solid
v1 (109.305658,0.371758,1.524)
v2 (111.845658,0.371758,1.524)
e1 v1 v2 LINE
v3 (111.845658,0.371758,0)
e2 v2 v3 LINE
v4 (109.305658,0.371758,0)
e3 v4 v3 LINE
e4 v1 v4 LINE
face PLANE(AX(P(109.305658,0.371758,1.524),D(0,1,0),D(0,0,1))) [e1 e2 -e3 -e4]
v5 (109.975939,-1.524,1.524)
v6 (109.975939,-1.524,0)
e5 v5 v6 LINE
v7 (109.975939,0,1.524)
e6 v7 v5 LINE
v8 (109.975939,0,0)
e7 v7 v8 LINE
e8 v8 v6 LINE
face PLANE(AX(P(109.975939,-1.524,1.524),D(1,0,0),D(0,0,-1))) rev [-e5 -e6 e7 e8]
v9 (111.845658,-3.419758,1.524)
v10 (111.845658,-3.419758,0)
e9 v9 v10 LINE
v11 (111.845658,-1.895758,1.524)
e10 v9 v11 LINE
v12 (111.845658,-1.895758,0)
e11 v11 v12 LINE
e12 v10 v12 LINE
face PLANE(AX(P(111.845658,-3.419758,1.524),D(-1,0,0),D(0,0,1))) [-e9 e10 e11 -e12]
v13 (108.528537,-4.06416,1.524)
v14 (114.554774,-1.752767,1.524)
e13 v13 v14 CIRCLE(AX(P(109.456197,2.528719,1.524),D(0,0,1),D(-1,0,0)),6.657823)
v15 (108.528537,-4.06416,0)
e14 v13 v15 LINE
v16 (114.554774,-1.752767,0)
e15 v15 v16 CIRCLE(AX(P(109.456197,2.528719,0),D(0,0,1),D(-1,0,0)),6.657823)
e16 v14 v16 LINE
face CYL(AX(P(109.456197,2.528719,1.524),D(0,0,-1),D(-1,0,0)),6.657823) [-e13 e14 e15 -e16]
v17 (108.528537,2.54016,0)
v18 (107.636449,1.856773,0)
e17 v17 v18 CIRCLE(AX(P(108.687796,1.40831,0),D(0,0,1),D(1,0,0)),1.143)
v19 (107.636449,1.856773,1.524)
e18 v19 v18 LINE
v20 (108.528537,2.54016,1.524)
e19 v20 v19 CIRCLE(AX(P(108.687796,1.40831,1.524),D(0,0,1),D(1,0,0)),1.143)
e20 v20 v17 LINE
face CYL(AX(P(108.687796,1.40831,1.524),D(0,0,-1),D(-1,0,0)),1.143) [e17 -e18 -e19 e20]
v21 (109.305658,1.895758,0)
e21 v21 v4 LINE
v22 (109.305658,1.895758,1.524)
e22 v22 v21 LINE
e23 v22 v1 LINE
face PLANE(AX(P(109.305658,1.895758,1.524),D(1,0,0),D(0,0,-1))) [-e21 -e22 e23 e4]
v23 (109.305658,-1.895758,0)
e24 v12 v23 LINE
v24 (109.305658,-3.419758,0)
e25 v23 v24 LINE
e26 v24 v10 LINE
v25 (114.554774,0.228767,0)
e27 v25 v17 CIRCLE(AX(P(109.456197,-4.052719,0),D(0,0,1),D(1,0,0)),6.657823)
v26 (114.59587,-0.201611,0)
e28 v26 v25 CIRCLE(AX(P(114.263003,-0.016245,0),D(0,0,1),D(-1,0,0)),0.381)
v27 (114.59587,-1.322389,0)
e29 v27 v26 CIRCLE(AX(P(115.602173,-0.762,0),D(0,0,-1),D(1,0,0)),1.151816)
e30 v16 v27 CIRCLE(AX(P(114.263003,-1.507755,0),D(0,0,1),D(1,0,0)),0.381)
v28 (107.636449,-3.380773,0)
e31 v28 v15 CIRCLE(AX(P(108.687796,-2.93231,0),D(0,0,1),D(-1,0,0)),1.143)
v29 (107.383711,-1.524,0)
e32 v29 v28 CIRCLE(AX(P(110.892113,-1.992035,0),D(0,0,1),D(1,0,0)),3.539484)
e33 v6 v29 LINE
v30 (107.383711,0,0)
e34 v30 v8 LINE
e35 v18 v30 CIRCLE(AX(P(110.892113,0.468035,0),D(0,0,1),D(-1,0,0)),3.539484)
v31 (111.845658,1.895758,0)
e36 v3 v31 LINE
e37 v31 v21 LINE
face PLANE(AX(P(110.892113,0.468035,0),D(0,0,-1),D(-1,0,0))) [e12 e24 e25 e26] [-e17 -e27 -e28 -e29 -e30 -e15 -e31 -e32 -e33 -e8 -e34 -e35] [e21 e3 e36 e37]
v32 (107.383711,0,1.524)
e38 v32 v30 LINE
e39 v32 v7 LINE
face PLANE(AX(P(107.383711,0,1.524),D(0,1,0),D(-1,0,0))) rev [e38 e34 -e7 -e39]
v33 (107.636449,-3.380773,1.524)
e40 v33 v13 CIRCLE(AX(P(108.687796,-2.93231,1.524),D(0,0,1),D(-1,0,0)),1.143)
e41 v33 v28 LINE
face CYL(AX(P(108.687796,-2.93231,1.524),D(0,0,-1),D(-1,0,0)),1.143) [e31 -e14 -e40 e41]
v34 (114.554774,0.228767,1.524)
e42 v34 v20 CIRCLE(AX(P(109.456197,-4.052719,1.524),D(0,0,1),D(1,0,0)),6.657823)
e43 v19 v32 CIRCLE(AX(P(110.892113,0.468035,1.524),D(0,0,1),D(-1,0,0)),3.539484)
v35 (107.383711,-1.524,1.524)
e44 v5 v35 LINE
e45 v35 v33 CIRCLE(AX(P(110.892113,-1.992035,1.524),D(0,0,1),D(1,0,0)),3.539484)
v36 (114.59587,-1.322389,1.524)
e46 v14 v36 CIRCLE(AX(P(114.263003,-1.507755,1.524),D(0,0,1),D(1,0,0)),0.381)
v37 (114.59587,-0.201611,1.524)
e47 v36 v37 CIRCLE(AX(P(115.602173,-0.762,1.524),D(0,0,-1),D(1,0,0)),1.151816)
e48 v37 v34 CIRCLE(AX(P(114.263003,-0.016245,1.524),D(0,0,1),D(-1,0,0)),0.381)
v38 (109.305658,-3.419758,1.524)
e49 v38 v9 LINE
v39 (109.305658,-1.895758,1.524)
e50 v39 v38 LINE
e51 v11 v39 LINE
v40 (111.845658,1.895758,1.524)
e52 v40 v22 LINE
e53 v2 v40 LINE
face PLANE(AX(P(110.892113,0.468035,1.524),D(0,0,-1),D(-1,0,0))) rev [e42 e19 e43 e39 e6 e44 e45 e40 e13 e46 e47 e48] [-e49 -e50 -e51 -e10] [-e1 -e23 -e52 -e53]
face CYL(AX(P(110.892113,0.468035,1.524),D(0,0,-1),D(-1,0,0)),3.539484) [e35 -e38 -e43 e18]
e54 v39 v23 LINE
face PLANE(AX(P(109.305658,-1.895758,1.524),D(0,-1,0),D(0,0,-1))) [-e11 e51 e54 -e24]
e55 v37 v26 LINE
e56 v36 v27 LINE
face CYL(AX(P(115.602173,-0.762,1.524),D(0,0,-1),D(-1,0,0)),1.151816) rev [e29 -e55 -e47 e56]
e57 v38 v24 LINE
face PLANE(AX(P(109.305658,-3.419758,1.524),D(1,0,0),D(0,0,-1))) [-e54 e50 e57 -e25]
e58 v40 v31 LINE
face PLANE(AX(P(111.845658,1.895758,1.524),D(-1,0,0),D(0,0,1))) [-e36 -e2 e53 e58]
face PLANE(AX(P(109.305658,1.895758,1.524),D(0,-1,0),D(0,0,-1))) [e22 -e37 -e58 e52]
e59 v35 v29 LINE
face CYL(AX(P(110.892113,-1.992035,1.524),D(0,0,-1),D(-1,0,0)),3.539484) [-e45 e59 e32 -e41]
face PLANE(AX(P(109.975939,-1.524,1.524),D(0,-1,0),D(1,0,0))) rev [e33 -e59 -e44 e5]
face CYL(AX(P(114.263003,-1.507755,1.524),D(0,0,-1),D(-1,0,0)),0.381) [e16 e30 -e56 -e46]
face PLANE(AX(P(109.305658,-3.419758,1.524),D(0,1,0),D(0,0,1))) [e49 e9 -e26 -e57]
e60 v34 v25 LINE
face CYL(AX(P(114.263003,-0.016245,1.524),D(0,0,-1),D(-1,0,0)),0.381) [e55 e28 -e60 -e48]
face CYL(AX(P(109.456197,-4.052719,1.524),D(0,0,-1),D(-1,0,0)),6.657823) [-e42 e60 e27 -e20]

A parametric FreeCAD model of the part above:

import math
import FreeCAD as App
import Part
import Sketcher

V = App.Vector
Q = App.Units.Quantity

doc = App.newDocument("Part")
body = doc.addObject("PartDesign::Body", "Body")

sketch1 = body.newObject("Sketcher::SketchObject", "Sketch")
sketch1.AttachmentSupport = (doc.getObject("XY_Plane"), [""])
sketch1.MapMode = "FlatFace"
sketch1.addGeometry(Part.LineSegment(V(109.98, -1.52, 0), V(107.38, -1.52, 0)), False)
sketch1.addGeometry(Part.ArcOfCircle(Part.Circle(V(110.89, -1.99, 0), V(0, 0, 1), 3.54), math.radians(172), math.radians(203)), False)
sketch1.addGeometry(Part.ArcOfCircle(Part.Circle(V(108.69, -2.93, 0), V(0, 0, 1), 1.14), math.radians(-157), math.radians(-98)), False)
sketch1.addGeometry(Part.ArcOfCircle(Part.Circle(V(109.46, 2.53, 0), V(0, 0, 1), 6.66), math.radians(-98), math.radians(-40)), False)
sketch1.addGeometry(Part.ArcOfCircle(Part.Circle(V(114.26, -1.51, 0), V(0, 0, 1), 0.38), math.radians(-40), math.radians(29)), False)
sketch1.addGeometry(Part.ArcOfCircle(Part.Circle(V(115.6, -0.76, 0), V(0, 0, 1), 1.15), math.radians(151), math.radians(209)), False)
sketch1.addGeometry(Part.ArcOfCircle(Part.Circle(V(114.26, -0.02, 0), V(0, 0, 1), 0.38), math.radians(-29), math.radians(40)), False)
sketch1.addGeometry(Part.ArcOfCircle(Part.Circle(V(109.46, -4.05, 0), V(0, 0, 1), 6.66), math.radians(40), math.radians(98)), False)
sketch1.addGeometry(Part.ArcOfCircle(Part.Circle(V(108.69, 1.41, 0), V(0, 0, 1), 1.14), math.radians(98), math.radians(157)), False)
sketch1.addGeometry(Part.ArcOfCircle(Part.Circle(V(110.89, 0.47, 0), V(0, 0, 1), 3.54), math.radians(157), math.radians(188)), False)
sketch1.addGeometry(Part.LineSegment(V(107.38, 0, 0), V(109.98, 0, 0)), False)
sketch1.addGeometry(Part.LineSegment(V(109.98, 0, 0), V(109.98, -1.52, 0)), False)
sketch1.addGeometry(Part.LineSegment(V(111.85, -3.42, 0), V(109.31, -3.42, 0)), False)
sketch1.addGeometry(Part.LineSegment(V(109.31, -3.42, 0), V(109.31, -1.9, 0)), False)
sketch1.addGeometry(Part.LineSegment(V(109.31, -1.9, 0), V(111.85, -1.9, 0)), False)
sketch1.addGeometry(Part.LineSegment(V(111.85, -1.9, 0), V(111.85, -3.42, 0)), False)
sketch1.addGeometry(Part.LineSegment(V(111.85, 0.37, 0), V(109.31, 0.37, 0)), False)
sketch1.addGeometry(Part.LineSegment(V(109.31, 0.37, 0), V(109.31, 1.9, 0)), False)
sketch1.addGeometry(Part.LineSegment(V(109.31, 1.9, 0), V(111.85, 1.9, 0)), False)
sketch1.addGeometry(Part.LineSegment(V(111.85, 1.9, 0), V(111.85, 0.37, 0)), False)
sketch1.addConstraint(Sketcher.Constraint("Coincident", 0, 2, 1, 1))
sketch1.addConstraint(Sketcher.Constraint("Tangent", 1, 2, 2, 1))
sketch1.addConstraint(Sketcher.Constraint("Tangent", 2, 2, 3, 1))
sketch1.addConstraint(Sketcher.Constraint("Tangent", 3, 2, 4, 1))
sketch1.addConstraint(Sketcher.Constraint("Tangent", 4, 2, 5, 2))
sketch1.addConstraint(Sketcher.Constraint("Tangent", 5, 1, 6, 1))
sketch1.addConstraint(Sketcher.Constraint("Tangent", 6, 2, 7, 1))
sketch1.addConstraint(Sketcher.Constraint("Tangent", 7, 2, 8, 1))
sketch1.addConstraint(Sketcher.Constraint("Tangent", 8, 2, 9, 1))
sketch1.addConstraint(Sketcher.Constraint("Coincident", 9, 2, 10, 1))
sketch1.addConstraint(Sketcher.Constraint("Coincident", 10, 2, 11, 1))
sketch1.addConstraint(Sketcher.Constraint("Coincident", 11, 2, 0, 1))
sketch1.addConstraint(Sketcher.Constraint("Coincident", 12, 2, 13, 1))
sketch1.addConstraint(Sketcher.Constraint("Coincident", 13, 2, 14, 1))
sketch1.addConstraint(Sketcher.Constraint("Coincident", 14, 2, 15, 1))
sketch1.addConstraint(Sketcher.Constraint("Coincident", 15, 2, 12, 1))
sketch1.addConstraint(Sketcher.Constraint("Coincident", 16, 2, 17, 1))
sketch1.addConstraint(Sketcher.Constraint("Coincident", 17, 2, 18, 1))
sketch1.addConstraint(Sketcher.Constraint("Coincident", 18, 2, 19, 1))
sketch1.addConstraint(Sketcher.Constraint("Coincident", 19, 2, 16, 1))
sketch1.addConstraint(Sketcher.Constraint("Horizontal", 0))
sketch1.addConstraint(Sketcher.Constraint("Horizontal", 10))
sketch1.addConstraint(Sketcher.Constraint("Vertical", 11))
sketch1.addConstraint(Sketcher.Constraint("Horizontal", 12))
sketch1.addConstraint(Sketcher.Constraint("Vertical", 13))
sketch1.addConstraint(Sketcher.Constraint("Horizontal", 14))
sketch1.addConstraint(Sketcher.Constraint("Vertical", 15))
sketch1.addConstraint(Sketcher.Constraint("Horizontal", 16))
sketch1.addConstraint(Sketcher.Constraint("Vertical", 17))
sketch1.addConstraint(Sketcher.Constraint("Horizontal", 18))
sketch1.addConstraint(Sketcher.Constraint("Vertical", 19))
sketch1.addConstraint(Sketcher.Constraint("Equal", 4, 6))
sketch1.addConstraint(Sketcher.Constraint("Equal", 3, 7))
sketch1.addConstraint(Sketcher.Constraint("Equal", 2, 8))
sketch1.addConstraint(Sketcher.Constraint("Equal", 1, 9))
sketch1.addConstraint(Sketcher.Constraint("Symmetric", 13, 2, 17, 2, -1))
sketch1.addConstraint(Sketcher.Constraint("PointOnObject", 9, 2, -1))
sketch1.addConstraint(Sketcher.Constraint("Vertical", 4, 3, 6, 3))
sketch1.addConstraint(Sketcher.Constraint("Vertical", 3, 3, 7, 3))
sketch1.addConstraint(Sketcher.Constraint("Vertical", 2, 3, 8, 3))
sketch1.addConstraint(Sketcher.Constraint("Vertical", 1, 3, 9, 3))
sketch1.addConstraint(Sketcher.Constraint("Vertical", 0, 2, 9, 2))
sketch1.addConstraint(Sketcher.Constraint("Vertical", 15, 2, 18, 2))
sketch1.addConstraint(Sketcher.Constraint("Equal", 11, 13))
sketch1.addConstraint(Sketcher.Constraint("Equal", 15, 17))
sketch1.addConstraint(Sketcher.Constraint("DistanceX", 12, 2, 12, 1, Q("0.1 in")))
sketch1.addConstraint(Sketcher.Constraint("Radius", 2, Q("0.045 in")))
sketch1.addConstraint(Sketcher.Constraint("Radius", 4, Q("0.015 in")))
sketch1.addConstraint(Sketcher.Constraint("DistanceY", 11, 2, 11, 1, Q("0.06 in")))
sketch1.addConstraint(Sketcher.Constraint("Radius", 1, Q("3.539484 mm")))
sketch1.addConstraint(Sketcher.Constraint("Radius", 3, Q("6.657823 mm")))
sketch1.addConstraint(Sketcher.Constraint("Radius", 5, Q("1.151816 mm")))
sketch1.addConstraint(Sketcher.Constraint("DistanceX", 2, 3, 3, 3, Q("0.768401 mm")))
sketch1.addConstraint(Sketcher.Constraint("DistanceX", 3, 2, 5, 3, Q("1.047399 mm")))
sketch1.addConstraint(Sketcher.Constraint("DistanceY", 3, 2, 9, 3, Q("2.220801 mm")))
sketch1.addConstraint(Sketcher.Constraint("DistanceX", 0, 2, 0, 1, Q("2.592228 mm")))
sketch1.addConstraint(Sketcher.Constraint("DistanceY", 2, 3, -1, 1, Q("2.93231 mm")))
sketch1.addConstraint(Sketcher.Constraint("DistanceX", -1, 1, 0, 2, Q("107.383711 mm")))
sketch1.addConstraint(Sketcher.Constraint("DistanceX", -1, 1, 12, 2, Q("109.305658 mm")))
sketch1.addConstraint(Sketcher.Constraint("DistanceY", 12, 2, -1, 1, Q("3.419758 mm")))
pad1 = body.newObject("PartDesign::Pad", "Pad")
pad1.Profile = sketch1
pad1.Length = Q("0.06 in")

doc.recompute()
